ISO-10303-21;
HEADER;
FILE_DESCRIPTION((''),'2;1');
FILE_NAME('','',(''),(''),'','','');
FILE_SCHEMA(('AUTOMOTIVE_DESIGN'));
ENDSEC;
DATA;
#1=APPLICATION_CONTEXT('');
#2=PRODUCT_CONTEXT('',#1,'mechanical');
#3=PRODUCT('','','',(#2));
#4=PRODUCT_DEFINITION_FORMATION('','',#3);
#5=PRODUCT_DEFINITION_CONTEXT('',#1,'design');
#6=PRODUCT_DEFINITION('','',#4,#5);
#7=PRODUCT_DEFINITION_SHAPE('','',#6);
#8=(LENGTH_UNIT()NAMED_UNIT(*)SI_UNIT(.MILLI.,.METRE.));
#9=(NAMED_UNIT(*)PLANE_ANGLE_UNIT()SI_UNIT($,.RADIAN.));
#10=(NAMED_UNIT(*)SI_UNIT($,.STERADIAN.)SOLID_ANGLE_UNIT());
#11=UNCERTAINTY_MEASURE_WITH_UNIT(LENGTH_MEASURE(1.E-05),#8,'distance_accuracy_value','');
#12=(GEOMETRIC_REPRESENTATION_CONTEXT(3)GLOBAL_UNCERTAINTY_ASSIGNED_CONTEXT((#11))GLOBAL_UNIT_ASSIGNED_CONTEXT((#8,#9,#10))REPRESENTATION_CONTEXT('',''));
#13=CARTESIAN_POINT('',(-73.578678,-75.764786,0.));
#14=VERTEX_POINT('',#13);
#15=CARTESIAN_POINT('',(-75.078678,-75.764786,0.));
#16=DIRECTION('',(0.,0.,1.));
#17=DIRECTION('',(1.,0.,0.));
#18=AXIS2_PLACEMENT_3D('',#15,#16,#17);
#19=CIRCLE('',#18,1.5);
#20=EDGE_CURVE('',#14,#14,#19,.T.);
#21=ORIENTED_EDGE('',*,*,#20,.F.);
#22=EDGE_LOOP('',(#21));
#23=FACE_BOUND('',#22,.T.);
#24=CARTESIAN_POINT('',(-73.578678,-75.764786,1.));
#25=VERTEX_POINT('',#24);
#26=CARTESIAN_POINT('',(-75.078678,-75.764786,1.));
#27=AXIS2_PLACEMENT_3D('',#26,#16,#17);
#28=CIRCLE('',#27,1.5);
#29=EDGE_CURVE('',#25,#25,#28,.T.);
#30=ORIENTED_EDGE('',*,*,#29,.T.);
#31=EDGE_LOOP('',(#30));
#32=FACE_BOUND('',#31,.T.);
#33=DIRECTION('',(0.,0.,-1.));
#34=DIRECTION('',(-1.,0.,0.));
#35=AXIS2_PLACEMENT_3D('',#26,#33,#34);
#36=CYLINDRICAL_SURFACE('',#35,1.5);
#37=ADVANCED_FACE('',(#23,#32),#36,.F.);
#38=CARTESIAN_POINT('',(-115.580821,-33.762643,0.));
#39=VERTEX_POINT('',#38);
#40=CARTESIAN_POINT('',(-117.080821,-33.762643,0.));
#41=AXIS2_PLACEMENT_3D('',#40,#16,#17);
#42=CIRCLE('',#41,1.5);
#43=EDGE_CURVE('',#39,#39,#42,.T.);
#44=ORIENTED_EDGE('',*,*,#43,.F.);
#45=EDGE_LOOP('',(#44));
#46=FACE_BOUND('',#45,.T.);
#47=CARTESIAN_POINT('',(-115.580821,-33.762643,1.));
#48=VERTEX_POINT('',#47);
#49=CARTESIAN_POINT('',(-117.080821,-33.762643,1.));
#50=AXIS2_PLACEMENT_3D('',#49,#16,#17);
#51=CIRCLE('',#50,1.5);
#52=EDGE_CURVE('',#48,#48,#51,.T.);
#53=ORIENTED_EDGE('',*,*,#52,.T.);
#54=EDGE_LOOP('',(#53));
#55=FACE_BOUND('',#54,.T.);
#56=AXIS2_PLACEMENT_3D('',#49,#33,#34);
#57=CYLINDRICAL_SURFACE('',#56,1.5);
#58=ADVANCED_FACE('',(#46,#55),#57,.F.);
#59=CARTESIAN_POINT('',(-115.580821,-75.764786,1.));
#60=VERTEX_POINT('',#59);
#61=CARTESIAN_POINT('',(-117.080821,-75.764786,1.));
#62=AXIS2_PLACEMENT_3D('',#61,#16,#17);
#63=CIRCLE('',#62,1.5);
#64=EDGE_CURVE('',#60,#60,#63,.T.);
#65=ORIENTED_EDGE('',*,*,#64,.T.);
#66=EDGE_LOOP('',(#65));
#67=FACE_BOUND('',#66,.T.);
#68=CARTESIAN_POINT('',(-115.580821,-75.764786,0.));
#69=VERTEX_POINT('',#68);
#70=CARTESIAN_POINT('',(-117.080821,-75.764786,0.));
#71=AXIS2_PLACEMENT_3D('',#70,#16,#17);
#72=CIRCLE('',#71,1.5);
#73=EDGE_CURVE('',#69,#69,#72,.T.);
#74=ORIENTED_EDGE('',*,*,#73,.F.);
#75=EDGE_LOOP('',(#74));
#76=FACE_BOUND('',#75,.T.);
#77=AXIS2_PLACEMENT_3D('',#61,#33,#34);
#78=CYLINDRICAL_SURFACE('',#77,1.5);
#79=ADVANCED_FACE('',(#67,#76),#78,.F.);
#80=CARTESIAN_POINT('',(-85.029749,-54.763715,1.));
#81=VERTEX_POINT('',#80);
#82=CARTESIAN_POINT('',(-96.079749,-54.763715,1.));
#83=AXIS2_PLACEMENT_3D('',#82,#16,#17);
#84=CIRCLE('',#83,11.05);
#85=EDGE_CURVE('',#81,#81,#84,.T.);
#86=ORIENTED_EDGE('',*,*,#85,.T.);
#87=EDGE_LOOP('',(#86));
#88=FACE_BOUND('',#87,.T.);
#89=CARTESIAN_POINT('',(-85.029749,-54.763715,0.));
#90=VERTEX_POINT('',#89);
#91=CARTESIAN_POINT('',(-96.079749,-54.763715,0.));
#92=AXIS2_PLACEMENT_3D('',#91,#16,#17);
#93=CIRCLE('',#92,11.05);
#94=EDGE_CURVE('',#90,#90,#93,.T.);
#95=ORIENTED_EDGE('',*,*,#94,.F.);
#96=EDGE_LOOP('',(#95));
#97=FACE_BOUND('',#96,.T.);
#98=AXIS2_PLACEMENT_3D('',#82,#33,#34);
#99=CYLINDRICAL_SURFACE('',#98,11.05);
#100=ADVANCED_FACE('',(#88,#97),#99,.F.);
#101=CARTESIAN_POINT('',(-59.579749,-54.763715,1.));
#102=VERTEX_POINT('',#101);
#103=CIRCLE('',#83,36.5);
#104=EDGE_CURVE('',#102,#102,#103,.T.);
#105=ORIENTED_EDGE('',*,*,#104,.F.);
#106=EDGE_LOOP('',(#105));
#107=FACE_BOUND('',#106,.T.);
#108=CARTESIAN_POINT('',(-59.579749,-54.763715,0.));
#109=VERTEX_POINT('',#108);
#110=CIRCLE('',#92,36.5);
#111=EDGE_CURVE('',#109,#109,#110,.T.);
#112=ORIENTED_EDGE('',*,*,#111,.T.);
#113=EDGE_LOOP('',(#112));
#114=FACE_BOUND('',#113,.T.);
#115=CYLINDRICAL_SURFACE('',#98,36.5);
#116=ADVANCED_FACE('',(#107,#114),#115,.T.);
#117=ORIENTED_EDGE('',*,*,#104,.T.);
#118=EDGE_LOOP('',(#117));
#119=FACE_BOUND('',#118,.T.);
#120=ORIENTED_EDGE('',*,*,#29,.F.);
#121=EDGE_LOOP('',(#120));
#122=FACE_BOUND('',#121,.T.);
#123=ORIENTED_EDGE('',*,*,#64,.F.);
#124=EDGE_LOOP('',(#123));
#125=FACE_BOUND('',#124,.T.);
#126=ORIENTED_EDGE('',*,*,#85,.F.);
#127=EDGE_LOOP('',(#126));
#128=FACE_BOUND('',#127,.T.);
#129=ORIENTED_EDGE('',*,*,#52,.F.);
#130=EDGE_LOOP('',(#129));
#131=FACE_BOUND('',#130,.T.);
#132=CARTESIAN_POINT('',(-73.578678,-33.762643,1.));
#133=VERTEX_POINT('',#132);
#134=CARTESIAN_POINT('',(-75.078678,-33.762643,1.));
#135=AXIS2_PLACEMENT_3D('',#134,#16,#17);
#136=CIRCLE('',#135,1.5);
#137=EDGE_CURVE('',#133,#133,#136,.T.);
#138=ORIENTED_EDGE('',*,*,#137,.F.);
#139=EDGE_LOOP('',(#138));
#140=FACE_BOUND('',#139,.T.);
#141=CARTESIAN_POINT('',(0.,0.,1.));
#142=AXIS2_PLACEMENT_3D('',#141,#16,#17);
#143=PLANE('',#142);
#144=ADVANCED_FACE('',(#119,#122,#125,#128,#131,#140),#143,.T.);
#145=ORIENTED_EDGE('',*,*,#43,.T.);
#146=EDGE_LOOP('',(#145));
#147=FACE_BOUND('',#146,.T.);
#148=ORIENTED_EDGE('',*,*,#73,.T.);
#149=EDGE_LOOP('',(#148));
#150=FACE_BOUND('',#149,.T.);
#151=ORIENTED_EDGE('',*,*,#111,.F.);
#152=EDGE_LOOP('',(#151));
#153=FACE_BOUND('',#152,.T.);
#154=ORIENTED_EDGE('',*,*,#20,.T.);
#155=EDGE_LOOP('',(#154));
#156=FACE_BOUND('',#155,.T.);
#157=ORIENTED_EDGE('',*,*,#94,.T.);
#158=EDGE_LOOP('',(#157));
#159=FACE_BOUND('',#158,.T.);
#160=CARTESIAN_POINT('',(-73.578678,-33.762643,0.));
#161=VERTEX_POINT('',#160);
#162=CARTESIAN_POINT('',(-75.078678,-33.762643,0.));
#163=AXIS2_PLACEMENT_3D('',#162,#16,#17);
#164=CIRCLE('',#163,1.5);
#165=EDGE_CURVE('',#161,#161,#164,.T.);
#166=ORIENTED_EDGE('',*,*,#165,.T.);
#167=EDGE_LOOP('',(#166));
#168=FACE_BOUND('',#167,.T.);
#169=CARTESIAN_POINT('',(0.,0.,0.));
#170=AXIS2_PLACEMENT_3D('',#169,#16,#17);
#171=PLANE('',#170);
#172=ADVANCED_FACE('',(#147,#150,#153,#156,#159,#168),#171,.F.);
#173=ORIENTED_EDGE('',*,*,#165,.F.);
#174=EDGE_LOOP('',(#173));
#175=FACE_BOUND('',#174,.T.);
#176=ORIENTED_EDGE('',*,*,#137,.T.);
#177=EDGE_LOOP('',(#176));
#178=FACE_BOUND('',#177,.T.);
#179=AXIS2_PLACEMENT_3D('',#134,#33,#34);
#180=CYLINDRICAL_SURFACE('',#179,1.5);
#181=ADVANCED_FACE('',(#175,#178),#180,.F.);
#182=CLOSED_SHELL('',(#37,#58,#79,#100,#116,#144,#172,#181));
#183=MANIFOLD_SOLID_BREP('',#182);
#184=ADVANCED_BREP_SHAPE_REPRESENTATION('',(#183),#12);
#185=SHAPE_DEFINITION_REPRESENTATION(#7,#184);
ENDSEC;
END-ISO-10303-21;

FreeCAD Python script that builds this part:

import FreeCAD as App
import Part
import Sketcher

doc = App.newDocument("Part")
body = doc.addObject("PartDesign::Body", "Body")

# Sketch on XY plane
sketch1 = body.newObject("Sketcher::SketchObject", "Sketch")
sketch1.AttachmentSupport = (doc.getObject("XY_Plane"), [""])
sketch1.MapMode = "FlatFace"
sketch1.addGeometry([
    Part.Circle(App.Vector(-96.1, -54.8, 0), App.Vector(0, 0, 1), 36.5),  # 0
    Part.Circle(App.Vector(-117.1, -75.8, 0), App.Vector(0, 0, 1), 1.5),  # 1
    Part.Circle(App.Vector(-75.1, -75.8, 0), App.Vector(0, 0, 1), 1.5),  # 2
    Part.Circle(App.Vector(-117.1, -33.8, 0), App.Vector(0, 0, 1), 1.5),  # 3
    Part.Circle(App.Vector(-96.1, -54.8, 0), App.Vector(0, 0, 1), 11.1),  # 4
    Part.Circle(App.Vector(-75.1, -33.8, 0), App.Vector(0, 0, 1), 1.5),  # 5
], False)
sketch1.addConstraint([
    Sketcher.Constraint("Coincident", 4, 3, 0, 3),
    Sketcher.Constraint("Equal", 1, 2),
    Sketcher.Constraint("Equal", 2, 3),
    Sketcher.Constraint("Equal", 3, 5),
    Sketcher.Constraint("Horizontal", 1, 3, 2, 3),
    Sketcher.Constraint("Horizontal", 3, 3, 5, 3),
    Sketcher.Constraint("Vertical", 1, 3, 3, 3),
    Sketcher.Constraint("Vertical", 2, 3, 5, 3),
    Sketcher.Constraint("Diameter", 0, 73.0),
    Sketcher.Constraint("Diameter", 1, 3.0),
    Sketcher.Constraint("Diameter", 4, 22.1),
    Sketcher.Constraint("DistanceX", 0, 3, -1, 1, 96.079749),
    Sketcher.Constraint("DistanceX", 1, 3, -1, 1, 117.080821),
    Sketcher.Constraint("DistanceY", 1, 3, 0, 3, 21.001071),
    Sketcher.Constraint("DistanceX", 0, 3, 2, 3, 21.001071),
    Sketcher.Constraint("DistanceY", 0, 3, 3, 3, 21.001071),
    Sketcher.Constraint("DistanceY", 0, 3, -1, 1, 54.763715),
])
pad1 = body.newObject("PartDesign::Pad", "Pad")
pad1.Profile = sketch1
pad1.Length = 1

doc.recompute()
